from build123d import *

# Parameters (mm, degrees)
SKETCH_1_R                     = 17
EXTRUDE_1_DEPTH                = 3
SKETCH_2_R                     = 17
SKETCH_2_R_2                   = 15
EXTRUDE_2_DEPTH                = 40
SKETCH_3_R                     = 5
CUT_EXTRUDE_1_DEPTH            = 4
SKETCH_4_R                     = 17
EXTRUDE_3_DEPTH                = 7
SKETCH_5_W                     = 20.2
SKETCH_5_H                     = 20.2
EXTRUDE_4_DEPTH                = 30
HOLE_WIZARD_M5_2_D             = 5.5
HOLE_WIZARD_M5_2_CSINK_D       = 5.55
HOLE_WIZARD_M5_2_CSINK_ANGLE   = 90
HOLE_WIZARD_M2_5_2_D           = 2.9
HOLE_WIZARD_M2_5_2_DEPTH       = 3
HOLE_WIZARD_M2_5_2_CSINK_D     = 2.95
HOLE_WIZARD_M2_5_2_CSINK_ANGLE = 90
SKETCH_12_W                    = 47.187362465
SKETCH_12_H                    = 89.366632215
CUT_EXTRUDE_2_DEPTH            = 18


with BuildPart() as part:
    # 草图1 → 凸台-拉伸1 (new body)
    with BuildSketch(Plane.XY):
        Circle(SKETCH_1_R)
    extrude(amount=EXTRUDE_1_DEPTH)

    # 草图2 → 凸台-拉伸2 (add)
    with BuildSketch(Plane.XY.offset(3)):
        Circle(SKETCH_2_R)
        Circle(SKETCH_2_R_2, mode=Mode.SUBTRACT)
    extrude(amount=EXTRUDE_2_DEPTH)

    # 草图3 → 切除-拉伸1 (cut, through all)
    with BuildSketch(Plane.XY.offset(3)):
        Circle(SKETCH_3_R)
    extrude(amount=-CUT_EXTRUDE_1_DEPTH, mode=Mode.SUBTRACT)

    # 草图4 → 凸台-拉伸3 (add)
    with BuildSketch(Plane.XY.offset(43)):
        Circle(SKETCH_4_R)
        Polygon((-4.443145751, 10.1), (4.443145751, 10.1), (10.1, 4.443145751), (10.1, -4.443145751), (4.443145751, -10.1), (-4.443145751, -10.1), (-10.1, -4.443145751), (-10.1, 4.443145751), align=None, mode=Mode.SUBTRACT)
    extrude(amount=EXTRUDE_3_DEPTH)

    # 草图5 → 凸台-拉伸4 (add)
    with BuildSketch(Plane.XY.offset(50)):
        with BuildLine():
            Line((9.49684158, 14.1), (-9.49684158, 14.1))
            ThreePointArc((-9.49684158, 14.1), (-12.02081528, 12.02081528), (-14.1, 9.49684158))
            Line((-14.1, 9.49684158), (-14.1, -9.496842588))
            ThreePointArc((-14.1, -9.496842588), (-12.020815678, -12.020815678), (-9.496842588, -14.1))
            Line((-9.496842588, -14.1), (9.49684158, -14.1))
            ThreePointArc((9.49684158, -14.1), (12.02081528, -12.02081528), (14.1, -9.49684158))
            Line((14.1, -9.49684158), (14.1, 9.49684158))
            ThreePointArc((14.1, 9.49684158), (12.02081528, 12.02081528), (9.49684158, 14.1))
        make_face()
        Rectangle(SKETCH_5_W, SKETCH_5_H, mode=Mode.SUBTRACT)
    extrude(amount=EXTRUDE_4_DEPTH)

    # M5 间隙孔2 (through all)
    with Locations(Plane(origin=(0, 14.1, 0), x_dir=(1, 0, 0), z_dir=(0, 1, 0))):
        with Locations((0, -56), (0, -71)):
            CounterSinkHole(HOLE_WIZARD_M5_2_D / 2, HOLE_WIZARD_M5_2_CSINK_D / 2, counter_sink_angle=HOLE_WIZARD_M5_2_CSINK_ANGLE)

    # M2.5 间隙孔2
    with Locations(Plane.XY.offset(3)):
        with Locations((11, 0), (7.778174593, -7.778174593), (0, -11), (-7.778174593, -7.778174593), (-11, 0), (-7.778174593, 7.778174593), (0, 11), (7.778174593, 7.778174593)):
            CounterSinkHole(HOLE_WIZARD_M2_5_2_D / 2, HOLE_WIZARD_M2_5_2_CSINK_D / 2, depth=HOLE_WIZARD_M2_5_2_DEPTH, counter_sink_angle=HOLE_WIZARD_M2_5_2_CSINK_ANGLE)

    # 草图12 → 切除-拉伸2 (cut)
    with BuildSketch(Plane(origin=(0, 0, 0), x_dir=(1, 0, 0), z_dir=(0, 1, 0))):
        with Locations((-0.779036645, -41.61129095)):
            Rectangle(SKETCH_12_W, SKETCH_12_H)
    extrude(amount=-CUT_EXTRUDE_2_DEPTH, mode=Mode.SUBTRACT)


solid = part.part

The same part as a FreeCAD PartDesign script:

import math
import FreeCAD as App
import Part
import Sketcher
from FreeCAD import Vector

doc = App.newDocument("Part")
params = doc.addObject("Spreadsheet::Sheet", "Params")
for row, (alias, value) in enumerate([
    ("sketch1_diameter", "34 mm"),
    ("pad1_length", "3 mm"),
    ("sketch2_diameter", "34 mm"),
    ("sketch2_diameter2", "30 mm"),
    ("pad2_length", "40 mm"),
    ("sketch3_diameter", "10 mm"),
    ("sketch4_diameter", "34 mm"),
    ("sketch4_length", "8 mm"),
    ("pad3_length", "7 mm"),
    ("sketch5_radius", "17 mm"),
    ("sketch5_width", "20.2 mm"),
    ("pad4_length", "30 mm"),
    ("sketch6_diameter", "5.5 mm"),
    ("hole_diameter", "5.5 mm"),
    ("hole_csink_diameter", "5.55 mm"),
    ("sketch7_diameter", "2.9 mm"),
    ("hole2_diameter", "2.9 mm"),
    ("hole2_depth", "3 mm"),
    ("hole2_csink_diameter", "2.95 mm"),
    ("pocket2_length", "18 mm"),
], start=1):
    params.set(f"A{row}", alias)
    params.set(f"B{row}", "=" + value)
    params.setAlias(f"B{row}", alias)

body = doc.addObject("PartDesign::Body", "Body")

# Sketch on XY plane
sketch1 = body.newObject("Sketcher::SketchObject", "Sketch")
sketch1.AttachmentSupport = (doc.getObject("XY_Plane"), [""])
sketch1.MapMode = "FlatFace"
sketch1.addGeometry(Part.Circle(Vector(0, 0, 0), Vector(0, 0, 1), 17), False)
sketch1.addConstraint(Sketcher.Constraint("Coincident", 0, 3, -1, 1))
sketch1.addConstraint(Sketcher.Constraint("Diameter", 0, 34.0))
sketch1.setExpression("Constraints[1]", "Params.sketch1_diameter")
pad1 = body.newObject("PartDesign::Pad", "Pad")
pad1.Profile = sketch1
pad1.setExpression("Length", "Params.pad1_length")

# Sketch on XY plane
sketch2 = body.newObject("Sketcher::SketchObject", "Sketch001")
sketch2.AttachmentSupport = (doc.getObject("XY_Plane"), [""])
sketch2.MapMode = "FlatFace"
sketch2.AttachmentOffset = App.Placement(Vector(0, 0, 3), App.Rotation())
sketch2.addGeometry(Part.Circle(Vector(0, 0, 0), Vector(0, 0, 1), 17), False)
sketch2.addGeometry(Part.Circle(Vector(0, 0, 0), Vector(0, 0, 1), 15), False)
sketch2.addConstraint(Sketcher.Constraint("Coincident", 0, 3, -1, 1))
sketch2.addConstraint(Sketcher.Constraint("Coincident", 1, 3, -1, 1))
sketch2.addConstraint(Sketcher.Constraint("Diameter", 0, 34.0))
sketch2.addConstraint(Sketcher.Constraint("Diameter", 1, 30.0))
sketch2.setExpression("Constraints[2]", "Params.sketch2_diameter")
sketch2.setExpression("Constraints[3]", "Params.sketch2_diameter2")
pad2 = body.newObject("PartDesign::Pad", "Pad001")
pad2.Profile = sketch2
pad2.setExpression("Length", "Params.pad2_length")

# Sketch on XY plane
sketch3 = body.newObject("Sketcher::SketchObject", "Sketch002")
sketch3.AttachmentSupport = (doc.getObject("XY_Plane"), [""])
sketch3.MapMode = "FlatFace"
sketch3.AttachmentOffset = App.Placement(Vector(0, 0, 3), App.Rotation())
sketch3.addGeometry(Part.Circle(Vector(0, 0, 0), Vector(0, 0, 1), 5), False)
sketch3.addConstraint(Sketcher.Constraint("Coincident", 0, 3, -1, 1))
sketch3.addConstraint(Sketcher.Constraint("Diameter", 0, 10.0))
sketch3.setExpression("Constraints[1]", "Params.sketch3_diameter")
pocket1 = body.newObject("PartDesign::Pocket", "Pocket")
pocket1.Profile = sketch3
pocket1.Type = "ThroughAll"

# Sketch on XY plane
sketch4 = body.newObject("Sketcher::SketchObject", "Sketch003")
sketch4.AttachmentSupport = (doc.getObject("XY_Plane"), [""])
sketch4.MapMode = "FlatFace"
sketch4.AttachmentOffset = App.Placement(Vector(0, 0, 43), App.Rotation())
sketch4.addGeometry(Part.Circle(Vector(0, 0, 0), Vector(0, 0, 1), 17), False)
sketch4.addGeometry(Part.LineSegment(Vector(-10, 4, 0), Vector(-4, 10, 0)), False)
sketch4.addGeometry(Part.LineSegment(Vector(-4, 10, 0), Vector(4, 10, 0)), False)
sketch4.addGeometry(Part.LineSegment(Vector(4, 10, 0), Vector(10, 4, 0)), False)
sketch4.addGeometry(Part.LineSegment(Vector(10, 4, 0), Vector(10, -4, 0)), False)
sketch4.addGeometry(Part.LineSegment(Vector(10, -4, 0), Vector(4, -10, 0)), False)
sketch4.addGeometry(Part.LineSegment(Vector(4, -10, 0), Vector(-4, -10, 0)), False)
sketch4.addGeometry(Part.LineSegment(Vector(-4, -10, 0), Vector(-10, -4, 0)), False)
sketch4.addGeometry(Part.LineSegment(Vector(-10, -4, 0), Vector(-10, 4, 0)), False)
sketch4.addConstraint(Sketcher.Constraint("Coincident", 1, 2, 2, 1))
sketch4.addConstraint(Sketcher.Constraint("Coincident", 2, 2, 3, 1))
sketch4.addConstraint(Sketcher.Constraint("Coincident", 3, 2, 4, 1))
sketch4.addConstraint(Sketcher.Constraint("Coincident", 4, 2, 5, 1))
sketch4.addConstraint(Sketcher.Constraint("Coincident", 5, 2, 6, 1))
sketch4.addConstraint(Sketcher.Constraint("Coincident", 6, 2, 7, 1))
sketch4.addConstraint(Sketcher.Constraint("Coincident", 7, 2, 8, 1))
sketch4.addConstraint(Sketcher.Constraint("Coincident", 8, 2, 1, 1))
sketch4.addConstraint(Sketcher.Constraint("Horizontal", 2))
sketch4.addConstraint(Sketcher.Constraint("Vertical", 4))
sketch4.addConstraint(Sketcher.Constraint("Horizontal", 6))
sketch4.addConstraint(Sketcher.Constraint("Vertical", 8))
sketch4.addConstraint(Sketcher.Constraint("Coincident", 0, 3, -1, 1))
sketch4.addConstraint(Sketcher.Constraint("Symmetric", 1, 2, 5, 2, -1, 1))
sketch4.addConstraint(Sketcher.Constraint("Symmetric", 3, 2, 7, 2, -1, 1))
sketch4.addConstraint(Sketcher.Constraint("Perpendicular", 1, 3))
sketch4.addConstraint(Sketcher.Constraint("Perpendicular", 3, 5))
sketch4.addConstraint(Sketcher.Constraint("Perpendicular", 5, 7))
sketch4.addConstraint(Sketcher.Constraint("Horizontal", 4, 2, 7, 2))
sketch4.addConstraint(Sketcher.Constraint("Vertical", 2, 2, 5, 2))
sketch4.addConstraint(Sketcher.Constraint("Equal", 6, 4))
sketch4.addConstraint(Sketcher.Constraint("Diameter", 0, 34.0))
sketch4.addConstraint(Sketcher.Constraint("Distance", 1, 8.0))
sketch4.addConstraint(Sketcher.Constraint("DistanceY", -1, 1, 1, 2, 10.1))
sketch4.setExpression("Constraints[21]", "Params.sketch4_diameter")
sketch4.setExpression("Constraints[22]", "Params.sketch4_length")
pad3 = body.newObject("PartDesign::Pad", "Pad002")
pad3.Profile = sketch4
pad3.setExpression("Length", "Params.pad3_length")

# Sketch on XY plane
sketch5 = body.newObject("Sketcher::SketchObject", "Sketch004")
sketch5.AttachmentSupport = (doc.getObject("XY_Plane"), [""])
sketch5.MapMode = "FlatFace"
sketch5.AttachmentOffset = App.Placement(Vector(0, 0, 50), App.Rotation())
sketch5.addGeometry(Part.LineSegment(Vector(9, 14, 0), Vector(-9, 14, 0)), False)
sketch5.addGeometry(Part.ArcOfCircle(Part.Circle(Vector(0, 0, 0), Vector(0, 0, 1), 17), math.radians(124), math.radians(146)), False)
sketch5.addGeometry(Part.LineSegment(Vector(-14, 9, 0), Vector(-14, -9, 0)), False)
sketch5.addGeometry(Part.ArcOfCircle(Part.Circle(Vector(0, 0, 0), Vector(0, 0, 1), 17), math.radians(-146), math.radians(-124)), False)
sketch5.addGeometry(Part.LineSegment(Vector(-9, -14, 0), Vector(9, -14, 0)), False)
sketch5.addGeometry(Part.ArcOfCircle(Part.Circle(Vector(0, 0, 0), Vector(0, 0, 1), 17), math.radians(-56), math.radians(-34)), False)
sketch5.addGeometry(Part.LineSegment(Vector(14, -9, 0), Vector(14, 9, 0)), False)
sketch5.addGeometry(Part.ArcOfCircle(Part.Circle(Vector(0, 0, 0), Vector(0, 0, 1), 17), math.radians(34), math.radians(56)), False)
sketch5.addGeometry(Part.LineSegment(Vector(10, -10, 0), Vector(-10, -10, 0)), False)
sketch5.addGeometry(Part.LineSegment(Vector(-10, -10, 0), Vector(-10, 10, 0)), False)
sketch5.addGeometry(Part.LineSegment(Vector(-10, 10, 0), Vector(10, 10, 0)), False)
sketch5.addGeometry(Part.LineSegment(Vector(10, 10, 0), Vector(10, -10, 0)), False)
sketch5.addConstraint(Sketcher.Constraint("Coincident", 0, 2, 1, 1))
sketch5.addConstraint(Sketcher.Constraint("Coincident", 1, 2, 2, 1))
sketch5.addConstraint(Sketcher.Constraint("Coincident", 2, 2, 3, 1))
sketch5.addConstraint(Sketcher.Constraint("Coincident", 3, 2, 4, 1))
sketch5.addConstraint(Sketcher.Constraint("Coincident", 4, 2, 5, 1))
sketch5.addConstraint(Sketcher.Constraint("Coincident", 5, 2, 6, 1))
sketch5.addConstraint(Sketcher.Constraint("Coincident", 6, 2, 7, 1))
sketch5.addConstraint(Sketcher.Constraint("Coincident", 7, 2, 0, 1))
sketch5.addConstraint(Sketcher.Constraint("Coincident", 8, 2, 9, 1))
sketch5.addConstraint(Sketcher.Constraint("Coincident", 9, 2, 10, 1))
sketch5.addConstraint(Sketcher.Constraint("Coincident", 10, 2, 11, 1))
sketch5.addConstraint(Sketcher.Constraint("Coincident", 11, 2, 8, 1))
sketch5.addConstraint(Sketcher.Constraint("Horizontal", 0))
sketch5.addConstraint(Sketcher.Constraint("Vertical", 2))
sketch5.addConstraint(Sketcher.Constraint("Horizontal", 4))
sketch5.addConstraint(Sketcher.Constraint("Vertical", 6))
sketch5.addConstraint(Sketcher.Constraint("Horizontal", 8))
sketch5.addConstraint(Sketcher.Constraint("Vertical", 9))
sketch5.addConstraint(Sketcher.Constraint("Horizontal", 10))
sketch5.addConstraint(Sketcher.Constraint("Vertical", 11))
sketch5.addConstraint(Sketcher.Constraint("Coincident", 1, 3, -1, 1))
sketch5.addConstraint(Sketcher.Constraint("Coincident", 3, 3, -1, 1))
sketch5.addConstraint(Sketcher.Constraint("Coincident", 5, 3, -1, 1))
sketch5.addConstraint(Sketcher.Constraint("Coincident", 7, 3, -1, 1))
sketch5.addConstraint(Sketcher.Constraint("Equal", 1, 3))
sketch5.addConstraint(Sketcher.Constraint("Equal", 3, 5))
sketch5.addConstraint(Sketcher.Constraint("Equal", 5, 7))
sketch5.addConstraint(Sketcher.Constraint("Symmetric", 8, 2, 10, 2, -1, 1))
sketch5.addConstraint(Sketcher.Constraint("Horizontal", 2, 2, 5, 2))
sketch5.addConstraint(Sketcher.Constraint("Vertical", 0, 2, 3, 2))
sketch5.addConstraint(Sketcher.Constraint("Equal", 4, 2))
sketch5.addConstraint(Sketcher.Constraint("Equal", 10, 9))
sketch5.addConstraint(Sketcher.Constraint("Radius", 1, 17.0))
sketch5.addConstraint(Sketcher.Constraint("DistanceX", 8, 2, 8, 1, 20.2))
sketch5.addConstraint(Sketcher.Constraint("DistanceY", 3, 2, 8, 2, 4.0))
sketch5.setExpression("Constraints[32]", "Params.sketch5_radius")
sketch5.setExpression("Constraints[33]", "Params.sketch5_width")
pad4 = body.newObject("PartDesign::Pad", "Pad003")
pad4.Profile = sketch5
pad4.setExpression("Length", "Params.pad4_length")

# Sketch on XZ plane
sketch6 = body.newObject("Sketcher::SketchObject", "Sketch005")
sketch6.AttachmentSupport = (doc.getObject("XZ_Plane"), [""])
sketch6.MapMode = "FlatFace"
sketch6.AttachmentOffset = App.Placement(Vector(0, 0, -14.1), App.Rotation())
sketch6.addGeometry(Part.Circle(Vector(0, 56, 0), Vector(0, 0, 1), 2.8), False)
sketch6.addGeometry(Part.Circle(Vector(0, 71, 0), Vector(0, 0, 1), 2.8), False)
sketch6.addConstraint(Sketcher.Constraint("Equal", 0, 1))
sketch6.addConstraint(Sketcher.Constraint("PointOnObject", 0, 3, -2))
sketch6.addConstraint(Sketcher.Constraint("PointOnObject", 1, 3, -2))
sketch6.addConstraint(Sketcher.Constraint("Diameter", 0, 5.5))
sketch6.addConstraint(Sketcher.Constraint("DistanceY", -1, 1, 0, 3, 56.0))
sketch6.addConstraint(Sketcher.Constraint("DistanceY", -1, 1, 1, 3, 71.0))
sketch6.setExpression("Constraints[3]", "Params.sketch6_diameter")
doc.recompute()
hole = body.newObject("PartDesign::Hole", "Hole")
hole.Profile = sketch6
hole.ThreadType = "None"
hole.setExpression("Diameter", "Params.hole_diameter")
hole.DepthType = "ThroughAll"
hole.HoleCutType = "Countersink"
hole.setExpression("HoleCutDiameter", "Params.hole_csink_diameter")
hole.HoleCutCountersinkAngle = 90
hole.Reversed = True

# Sketch on XY plane
sketch7 = body.newObject("Sketcher::SketchObject", "Sketch006")
sketch7.AttachmentSupport = (doc.getObject("XY_Plane"), [""])
sketch7.MapMode = "FlatFace"
sketch7.AttachmentOffset = App.Placement(Vector(0, 0, 3), App.Rotation())
sketch7.addGeometry(Part.Circle(Vector(11, 0, 0), Vector(0, 0, 1), 1.4), False)
sketch7.addGeometry(Part.Circle(Vector(7.8, -7.8, 0), Vector(0, 0, 1), 1.4), False)
sketch7.addGeometry(Part.Circle(Vector(0, -11, 0), Vector(0, 0, 1), 1.4), False)
sketch7.addGeometry(Part.Circle(Vector(-7.8, -7.8, 0), Vector(0, 0, 1), 1.4), False)
sketch7.addGeometry(Part.Circle(Vector(-11, 0, 0), Vector(0, 0, 1), 1.4), False)
sketch7.addGeometry(Part.Circle(Vector(-7.8, 7.8, 0), Vector(0, 0, 1), 1.4), False)
sketch7.addGeometry(Part.Circle(Vector(0, 11, 0), Vector(0, 0, 1), 1.4), False)
sketch7.addGeometry(Part.Circle(Vector(7.8, 7.8, 0), Vector(0, 0, 1), 1.4), False)
sketch7.addConstraint(Sketcher.Constraint("Equal", 0, 1))
sketch7.addConstraint(Sketcher.Constraint("Equal", 1, 2))
sketch7.addConstraint(Sketcher.Constraint("Equal", 2, 3))
sketch7.addConstraint(Sketcher.Constraint("Equal", 3, 4))
sketch7.addConstraint(Sketcher.Constraint("Equal", 4, 5))
sketch7.addConstraint(Sketcher.Constraint("Equal", 5, 6))
sketch7.addConstraint(Sketcher.Constraint("Equal", 6, 7))
sketch7.addConstraint(Sketcher.Constraint("Symmetric", 0, 3, 4, 3, -1, 1))
sketch7.addConstraint(Sketcher.Constraint("Symmetric", 1, 3, 5, 3, -1, 1))
sketch7.addConstraint(Sketcher.Constraint("Symmetric", 2, 3, 6, 3, -1, 1))
sketch7.addConstraint(Sketcher.Constraint("Symmetric", 3, 3, 7, 3, -1, 1))
sketch7.addConstraint(Sketcher.Constraint("Symmetric", 1, 3, 3, 3, -2))
sketch7.addConstraint(Sketcher.Constraint("PointOnObject", 0, 3, -1))
sketch7.addConstraint(Sketcher.Constraint("PointOnObject", 2, 3, -2))
sketch7.addConstraint(Sketcher.Constraint("Diameter", 0, 2.9))
sketch7.addConstraint(Sketcher.Constraint("DistanceX", -1, 1, 0, 3, 11.0))
sketch7.addConstraint(Sketcher.Constraint("DistanceY", 2, 3, -1, 1, 11.0))
sketch7.addConstraint(Sketcher.Constraint("DistanceX", 3, 3, 1, 3, 15.556349))
sketch7.addConstraint(Sketcher.Constraint("DistanceY", 3, 3, 5, 3, 15.556349))
sketch7.setExpression("Constraints[14]", "Params.sketch7_diameter")
doc.recompute()
hole2 = body.newObject("PartDesign::Hole", "Hole001")
hole2.Profile = sketch7
hole2.ThreadType = "None"
hole2.setExpression("Diameter", "Params.hole2_diameter")
hole2.DepthType = "Dimension"
hole2.setExpression("Depth", "Params.hole2_depth")
hole2.DrillPoint = "Flat"
hole2.HoleCutType = "Countersink"
hole2.setExpression("HoleCutDiameter", "Params.hole2_csink_diameter")
hole2.HoleCutCountersinkAngle = 90

# Sketch on XZ plane
sketch8 = body.newObject("Sketcher::SketchObject", "Sketch007")
sketch8.AttachmentSupport = (doc.getObject("XZ_Plane"), [""])
sketch8.MapMode = "FlatFace"
sketch8.addGeometry(Part.LineSegment(Vector(-24, -3, 0), Vector(-24, 86, 0)), False)
sketch8.addGeometry(Part.LineSegment(Vector(-24, 86, 0), Vector(23, 86, 0)), False)
sketch8.addGeometry(Part.LineSegment(Vector(23, 86, 0), Vector(23, -3, 0)), False)
sketch8.addGeometry(Part.LineSegment(Vector(23, -3, 0), Vector(-24, -3, 0)), False)
sketch8.addConstraint(Sketcher.Constraint("Coincident", 0, 2, 1, 1))
sketch8.addConstraint(Sketcher.Constraint("Coincident", 1, 2, 2, 1))
sketch8.addConstraint(Sketcher.Constraint("Coincident", 2, 2, 3, 1))
sketch8.addConstraint(Sketcher.Constraint("Coincident", 3, 2, 0, 1))
sketch8.addConstraint(Sketcher.Constraint("Vertical", 0))
sketch8.addConstraint(Sketcher.Constraint("Horizontal", 1))
sketch8.addConstraint(Sketcher.Constraint("Vertical", 2))
sketch8.addConstraint(Sketcher.Constraint("Horizontal", 3))
sketch8.addConstraint(Sketcher.Constraint("DistanceX", 1, 1, 1, 2, 47.187362))
sketch8.addConstraint(Sketcher.Constraint("DistanceY", 0, 1, 0, 2, 89.366632))
sketch8.addConstraint(Sketcher.Constraint("DistanceX", 0, 2, -1, 1, 24.372718))
sketch8.addConstraint(Sketcher.Constraint("DistanceY", -1, 1, 0, 2, 86.294607))
pocket2 = body.newObject("PartDesign::Pocket", "Pocket001")
pocket2.Profile = sketch8
pocket2.setExpression("Length", "Params.pocket2_length")
pocket2.Reversed = True

doc.recompute()
